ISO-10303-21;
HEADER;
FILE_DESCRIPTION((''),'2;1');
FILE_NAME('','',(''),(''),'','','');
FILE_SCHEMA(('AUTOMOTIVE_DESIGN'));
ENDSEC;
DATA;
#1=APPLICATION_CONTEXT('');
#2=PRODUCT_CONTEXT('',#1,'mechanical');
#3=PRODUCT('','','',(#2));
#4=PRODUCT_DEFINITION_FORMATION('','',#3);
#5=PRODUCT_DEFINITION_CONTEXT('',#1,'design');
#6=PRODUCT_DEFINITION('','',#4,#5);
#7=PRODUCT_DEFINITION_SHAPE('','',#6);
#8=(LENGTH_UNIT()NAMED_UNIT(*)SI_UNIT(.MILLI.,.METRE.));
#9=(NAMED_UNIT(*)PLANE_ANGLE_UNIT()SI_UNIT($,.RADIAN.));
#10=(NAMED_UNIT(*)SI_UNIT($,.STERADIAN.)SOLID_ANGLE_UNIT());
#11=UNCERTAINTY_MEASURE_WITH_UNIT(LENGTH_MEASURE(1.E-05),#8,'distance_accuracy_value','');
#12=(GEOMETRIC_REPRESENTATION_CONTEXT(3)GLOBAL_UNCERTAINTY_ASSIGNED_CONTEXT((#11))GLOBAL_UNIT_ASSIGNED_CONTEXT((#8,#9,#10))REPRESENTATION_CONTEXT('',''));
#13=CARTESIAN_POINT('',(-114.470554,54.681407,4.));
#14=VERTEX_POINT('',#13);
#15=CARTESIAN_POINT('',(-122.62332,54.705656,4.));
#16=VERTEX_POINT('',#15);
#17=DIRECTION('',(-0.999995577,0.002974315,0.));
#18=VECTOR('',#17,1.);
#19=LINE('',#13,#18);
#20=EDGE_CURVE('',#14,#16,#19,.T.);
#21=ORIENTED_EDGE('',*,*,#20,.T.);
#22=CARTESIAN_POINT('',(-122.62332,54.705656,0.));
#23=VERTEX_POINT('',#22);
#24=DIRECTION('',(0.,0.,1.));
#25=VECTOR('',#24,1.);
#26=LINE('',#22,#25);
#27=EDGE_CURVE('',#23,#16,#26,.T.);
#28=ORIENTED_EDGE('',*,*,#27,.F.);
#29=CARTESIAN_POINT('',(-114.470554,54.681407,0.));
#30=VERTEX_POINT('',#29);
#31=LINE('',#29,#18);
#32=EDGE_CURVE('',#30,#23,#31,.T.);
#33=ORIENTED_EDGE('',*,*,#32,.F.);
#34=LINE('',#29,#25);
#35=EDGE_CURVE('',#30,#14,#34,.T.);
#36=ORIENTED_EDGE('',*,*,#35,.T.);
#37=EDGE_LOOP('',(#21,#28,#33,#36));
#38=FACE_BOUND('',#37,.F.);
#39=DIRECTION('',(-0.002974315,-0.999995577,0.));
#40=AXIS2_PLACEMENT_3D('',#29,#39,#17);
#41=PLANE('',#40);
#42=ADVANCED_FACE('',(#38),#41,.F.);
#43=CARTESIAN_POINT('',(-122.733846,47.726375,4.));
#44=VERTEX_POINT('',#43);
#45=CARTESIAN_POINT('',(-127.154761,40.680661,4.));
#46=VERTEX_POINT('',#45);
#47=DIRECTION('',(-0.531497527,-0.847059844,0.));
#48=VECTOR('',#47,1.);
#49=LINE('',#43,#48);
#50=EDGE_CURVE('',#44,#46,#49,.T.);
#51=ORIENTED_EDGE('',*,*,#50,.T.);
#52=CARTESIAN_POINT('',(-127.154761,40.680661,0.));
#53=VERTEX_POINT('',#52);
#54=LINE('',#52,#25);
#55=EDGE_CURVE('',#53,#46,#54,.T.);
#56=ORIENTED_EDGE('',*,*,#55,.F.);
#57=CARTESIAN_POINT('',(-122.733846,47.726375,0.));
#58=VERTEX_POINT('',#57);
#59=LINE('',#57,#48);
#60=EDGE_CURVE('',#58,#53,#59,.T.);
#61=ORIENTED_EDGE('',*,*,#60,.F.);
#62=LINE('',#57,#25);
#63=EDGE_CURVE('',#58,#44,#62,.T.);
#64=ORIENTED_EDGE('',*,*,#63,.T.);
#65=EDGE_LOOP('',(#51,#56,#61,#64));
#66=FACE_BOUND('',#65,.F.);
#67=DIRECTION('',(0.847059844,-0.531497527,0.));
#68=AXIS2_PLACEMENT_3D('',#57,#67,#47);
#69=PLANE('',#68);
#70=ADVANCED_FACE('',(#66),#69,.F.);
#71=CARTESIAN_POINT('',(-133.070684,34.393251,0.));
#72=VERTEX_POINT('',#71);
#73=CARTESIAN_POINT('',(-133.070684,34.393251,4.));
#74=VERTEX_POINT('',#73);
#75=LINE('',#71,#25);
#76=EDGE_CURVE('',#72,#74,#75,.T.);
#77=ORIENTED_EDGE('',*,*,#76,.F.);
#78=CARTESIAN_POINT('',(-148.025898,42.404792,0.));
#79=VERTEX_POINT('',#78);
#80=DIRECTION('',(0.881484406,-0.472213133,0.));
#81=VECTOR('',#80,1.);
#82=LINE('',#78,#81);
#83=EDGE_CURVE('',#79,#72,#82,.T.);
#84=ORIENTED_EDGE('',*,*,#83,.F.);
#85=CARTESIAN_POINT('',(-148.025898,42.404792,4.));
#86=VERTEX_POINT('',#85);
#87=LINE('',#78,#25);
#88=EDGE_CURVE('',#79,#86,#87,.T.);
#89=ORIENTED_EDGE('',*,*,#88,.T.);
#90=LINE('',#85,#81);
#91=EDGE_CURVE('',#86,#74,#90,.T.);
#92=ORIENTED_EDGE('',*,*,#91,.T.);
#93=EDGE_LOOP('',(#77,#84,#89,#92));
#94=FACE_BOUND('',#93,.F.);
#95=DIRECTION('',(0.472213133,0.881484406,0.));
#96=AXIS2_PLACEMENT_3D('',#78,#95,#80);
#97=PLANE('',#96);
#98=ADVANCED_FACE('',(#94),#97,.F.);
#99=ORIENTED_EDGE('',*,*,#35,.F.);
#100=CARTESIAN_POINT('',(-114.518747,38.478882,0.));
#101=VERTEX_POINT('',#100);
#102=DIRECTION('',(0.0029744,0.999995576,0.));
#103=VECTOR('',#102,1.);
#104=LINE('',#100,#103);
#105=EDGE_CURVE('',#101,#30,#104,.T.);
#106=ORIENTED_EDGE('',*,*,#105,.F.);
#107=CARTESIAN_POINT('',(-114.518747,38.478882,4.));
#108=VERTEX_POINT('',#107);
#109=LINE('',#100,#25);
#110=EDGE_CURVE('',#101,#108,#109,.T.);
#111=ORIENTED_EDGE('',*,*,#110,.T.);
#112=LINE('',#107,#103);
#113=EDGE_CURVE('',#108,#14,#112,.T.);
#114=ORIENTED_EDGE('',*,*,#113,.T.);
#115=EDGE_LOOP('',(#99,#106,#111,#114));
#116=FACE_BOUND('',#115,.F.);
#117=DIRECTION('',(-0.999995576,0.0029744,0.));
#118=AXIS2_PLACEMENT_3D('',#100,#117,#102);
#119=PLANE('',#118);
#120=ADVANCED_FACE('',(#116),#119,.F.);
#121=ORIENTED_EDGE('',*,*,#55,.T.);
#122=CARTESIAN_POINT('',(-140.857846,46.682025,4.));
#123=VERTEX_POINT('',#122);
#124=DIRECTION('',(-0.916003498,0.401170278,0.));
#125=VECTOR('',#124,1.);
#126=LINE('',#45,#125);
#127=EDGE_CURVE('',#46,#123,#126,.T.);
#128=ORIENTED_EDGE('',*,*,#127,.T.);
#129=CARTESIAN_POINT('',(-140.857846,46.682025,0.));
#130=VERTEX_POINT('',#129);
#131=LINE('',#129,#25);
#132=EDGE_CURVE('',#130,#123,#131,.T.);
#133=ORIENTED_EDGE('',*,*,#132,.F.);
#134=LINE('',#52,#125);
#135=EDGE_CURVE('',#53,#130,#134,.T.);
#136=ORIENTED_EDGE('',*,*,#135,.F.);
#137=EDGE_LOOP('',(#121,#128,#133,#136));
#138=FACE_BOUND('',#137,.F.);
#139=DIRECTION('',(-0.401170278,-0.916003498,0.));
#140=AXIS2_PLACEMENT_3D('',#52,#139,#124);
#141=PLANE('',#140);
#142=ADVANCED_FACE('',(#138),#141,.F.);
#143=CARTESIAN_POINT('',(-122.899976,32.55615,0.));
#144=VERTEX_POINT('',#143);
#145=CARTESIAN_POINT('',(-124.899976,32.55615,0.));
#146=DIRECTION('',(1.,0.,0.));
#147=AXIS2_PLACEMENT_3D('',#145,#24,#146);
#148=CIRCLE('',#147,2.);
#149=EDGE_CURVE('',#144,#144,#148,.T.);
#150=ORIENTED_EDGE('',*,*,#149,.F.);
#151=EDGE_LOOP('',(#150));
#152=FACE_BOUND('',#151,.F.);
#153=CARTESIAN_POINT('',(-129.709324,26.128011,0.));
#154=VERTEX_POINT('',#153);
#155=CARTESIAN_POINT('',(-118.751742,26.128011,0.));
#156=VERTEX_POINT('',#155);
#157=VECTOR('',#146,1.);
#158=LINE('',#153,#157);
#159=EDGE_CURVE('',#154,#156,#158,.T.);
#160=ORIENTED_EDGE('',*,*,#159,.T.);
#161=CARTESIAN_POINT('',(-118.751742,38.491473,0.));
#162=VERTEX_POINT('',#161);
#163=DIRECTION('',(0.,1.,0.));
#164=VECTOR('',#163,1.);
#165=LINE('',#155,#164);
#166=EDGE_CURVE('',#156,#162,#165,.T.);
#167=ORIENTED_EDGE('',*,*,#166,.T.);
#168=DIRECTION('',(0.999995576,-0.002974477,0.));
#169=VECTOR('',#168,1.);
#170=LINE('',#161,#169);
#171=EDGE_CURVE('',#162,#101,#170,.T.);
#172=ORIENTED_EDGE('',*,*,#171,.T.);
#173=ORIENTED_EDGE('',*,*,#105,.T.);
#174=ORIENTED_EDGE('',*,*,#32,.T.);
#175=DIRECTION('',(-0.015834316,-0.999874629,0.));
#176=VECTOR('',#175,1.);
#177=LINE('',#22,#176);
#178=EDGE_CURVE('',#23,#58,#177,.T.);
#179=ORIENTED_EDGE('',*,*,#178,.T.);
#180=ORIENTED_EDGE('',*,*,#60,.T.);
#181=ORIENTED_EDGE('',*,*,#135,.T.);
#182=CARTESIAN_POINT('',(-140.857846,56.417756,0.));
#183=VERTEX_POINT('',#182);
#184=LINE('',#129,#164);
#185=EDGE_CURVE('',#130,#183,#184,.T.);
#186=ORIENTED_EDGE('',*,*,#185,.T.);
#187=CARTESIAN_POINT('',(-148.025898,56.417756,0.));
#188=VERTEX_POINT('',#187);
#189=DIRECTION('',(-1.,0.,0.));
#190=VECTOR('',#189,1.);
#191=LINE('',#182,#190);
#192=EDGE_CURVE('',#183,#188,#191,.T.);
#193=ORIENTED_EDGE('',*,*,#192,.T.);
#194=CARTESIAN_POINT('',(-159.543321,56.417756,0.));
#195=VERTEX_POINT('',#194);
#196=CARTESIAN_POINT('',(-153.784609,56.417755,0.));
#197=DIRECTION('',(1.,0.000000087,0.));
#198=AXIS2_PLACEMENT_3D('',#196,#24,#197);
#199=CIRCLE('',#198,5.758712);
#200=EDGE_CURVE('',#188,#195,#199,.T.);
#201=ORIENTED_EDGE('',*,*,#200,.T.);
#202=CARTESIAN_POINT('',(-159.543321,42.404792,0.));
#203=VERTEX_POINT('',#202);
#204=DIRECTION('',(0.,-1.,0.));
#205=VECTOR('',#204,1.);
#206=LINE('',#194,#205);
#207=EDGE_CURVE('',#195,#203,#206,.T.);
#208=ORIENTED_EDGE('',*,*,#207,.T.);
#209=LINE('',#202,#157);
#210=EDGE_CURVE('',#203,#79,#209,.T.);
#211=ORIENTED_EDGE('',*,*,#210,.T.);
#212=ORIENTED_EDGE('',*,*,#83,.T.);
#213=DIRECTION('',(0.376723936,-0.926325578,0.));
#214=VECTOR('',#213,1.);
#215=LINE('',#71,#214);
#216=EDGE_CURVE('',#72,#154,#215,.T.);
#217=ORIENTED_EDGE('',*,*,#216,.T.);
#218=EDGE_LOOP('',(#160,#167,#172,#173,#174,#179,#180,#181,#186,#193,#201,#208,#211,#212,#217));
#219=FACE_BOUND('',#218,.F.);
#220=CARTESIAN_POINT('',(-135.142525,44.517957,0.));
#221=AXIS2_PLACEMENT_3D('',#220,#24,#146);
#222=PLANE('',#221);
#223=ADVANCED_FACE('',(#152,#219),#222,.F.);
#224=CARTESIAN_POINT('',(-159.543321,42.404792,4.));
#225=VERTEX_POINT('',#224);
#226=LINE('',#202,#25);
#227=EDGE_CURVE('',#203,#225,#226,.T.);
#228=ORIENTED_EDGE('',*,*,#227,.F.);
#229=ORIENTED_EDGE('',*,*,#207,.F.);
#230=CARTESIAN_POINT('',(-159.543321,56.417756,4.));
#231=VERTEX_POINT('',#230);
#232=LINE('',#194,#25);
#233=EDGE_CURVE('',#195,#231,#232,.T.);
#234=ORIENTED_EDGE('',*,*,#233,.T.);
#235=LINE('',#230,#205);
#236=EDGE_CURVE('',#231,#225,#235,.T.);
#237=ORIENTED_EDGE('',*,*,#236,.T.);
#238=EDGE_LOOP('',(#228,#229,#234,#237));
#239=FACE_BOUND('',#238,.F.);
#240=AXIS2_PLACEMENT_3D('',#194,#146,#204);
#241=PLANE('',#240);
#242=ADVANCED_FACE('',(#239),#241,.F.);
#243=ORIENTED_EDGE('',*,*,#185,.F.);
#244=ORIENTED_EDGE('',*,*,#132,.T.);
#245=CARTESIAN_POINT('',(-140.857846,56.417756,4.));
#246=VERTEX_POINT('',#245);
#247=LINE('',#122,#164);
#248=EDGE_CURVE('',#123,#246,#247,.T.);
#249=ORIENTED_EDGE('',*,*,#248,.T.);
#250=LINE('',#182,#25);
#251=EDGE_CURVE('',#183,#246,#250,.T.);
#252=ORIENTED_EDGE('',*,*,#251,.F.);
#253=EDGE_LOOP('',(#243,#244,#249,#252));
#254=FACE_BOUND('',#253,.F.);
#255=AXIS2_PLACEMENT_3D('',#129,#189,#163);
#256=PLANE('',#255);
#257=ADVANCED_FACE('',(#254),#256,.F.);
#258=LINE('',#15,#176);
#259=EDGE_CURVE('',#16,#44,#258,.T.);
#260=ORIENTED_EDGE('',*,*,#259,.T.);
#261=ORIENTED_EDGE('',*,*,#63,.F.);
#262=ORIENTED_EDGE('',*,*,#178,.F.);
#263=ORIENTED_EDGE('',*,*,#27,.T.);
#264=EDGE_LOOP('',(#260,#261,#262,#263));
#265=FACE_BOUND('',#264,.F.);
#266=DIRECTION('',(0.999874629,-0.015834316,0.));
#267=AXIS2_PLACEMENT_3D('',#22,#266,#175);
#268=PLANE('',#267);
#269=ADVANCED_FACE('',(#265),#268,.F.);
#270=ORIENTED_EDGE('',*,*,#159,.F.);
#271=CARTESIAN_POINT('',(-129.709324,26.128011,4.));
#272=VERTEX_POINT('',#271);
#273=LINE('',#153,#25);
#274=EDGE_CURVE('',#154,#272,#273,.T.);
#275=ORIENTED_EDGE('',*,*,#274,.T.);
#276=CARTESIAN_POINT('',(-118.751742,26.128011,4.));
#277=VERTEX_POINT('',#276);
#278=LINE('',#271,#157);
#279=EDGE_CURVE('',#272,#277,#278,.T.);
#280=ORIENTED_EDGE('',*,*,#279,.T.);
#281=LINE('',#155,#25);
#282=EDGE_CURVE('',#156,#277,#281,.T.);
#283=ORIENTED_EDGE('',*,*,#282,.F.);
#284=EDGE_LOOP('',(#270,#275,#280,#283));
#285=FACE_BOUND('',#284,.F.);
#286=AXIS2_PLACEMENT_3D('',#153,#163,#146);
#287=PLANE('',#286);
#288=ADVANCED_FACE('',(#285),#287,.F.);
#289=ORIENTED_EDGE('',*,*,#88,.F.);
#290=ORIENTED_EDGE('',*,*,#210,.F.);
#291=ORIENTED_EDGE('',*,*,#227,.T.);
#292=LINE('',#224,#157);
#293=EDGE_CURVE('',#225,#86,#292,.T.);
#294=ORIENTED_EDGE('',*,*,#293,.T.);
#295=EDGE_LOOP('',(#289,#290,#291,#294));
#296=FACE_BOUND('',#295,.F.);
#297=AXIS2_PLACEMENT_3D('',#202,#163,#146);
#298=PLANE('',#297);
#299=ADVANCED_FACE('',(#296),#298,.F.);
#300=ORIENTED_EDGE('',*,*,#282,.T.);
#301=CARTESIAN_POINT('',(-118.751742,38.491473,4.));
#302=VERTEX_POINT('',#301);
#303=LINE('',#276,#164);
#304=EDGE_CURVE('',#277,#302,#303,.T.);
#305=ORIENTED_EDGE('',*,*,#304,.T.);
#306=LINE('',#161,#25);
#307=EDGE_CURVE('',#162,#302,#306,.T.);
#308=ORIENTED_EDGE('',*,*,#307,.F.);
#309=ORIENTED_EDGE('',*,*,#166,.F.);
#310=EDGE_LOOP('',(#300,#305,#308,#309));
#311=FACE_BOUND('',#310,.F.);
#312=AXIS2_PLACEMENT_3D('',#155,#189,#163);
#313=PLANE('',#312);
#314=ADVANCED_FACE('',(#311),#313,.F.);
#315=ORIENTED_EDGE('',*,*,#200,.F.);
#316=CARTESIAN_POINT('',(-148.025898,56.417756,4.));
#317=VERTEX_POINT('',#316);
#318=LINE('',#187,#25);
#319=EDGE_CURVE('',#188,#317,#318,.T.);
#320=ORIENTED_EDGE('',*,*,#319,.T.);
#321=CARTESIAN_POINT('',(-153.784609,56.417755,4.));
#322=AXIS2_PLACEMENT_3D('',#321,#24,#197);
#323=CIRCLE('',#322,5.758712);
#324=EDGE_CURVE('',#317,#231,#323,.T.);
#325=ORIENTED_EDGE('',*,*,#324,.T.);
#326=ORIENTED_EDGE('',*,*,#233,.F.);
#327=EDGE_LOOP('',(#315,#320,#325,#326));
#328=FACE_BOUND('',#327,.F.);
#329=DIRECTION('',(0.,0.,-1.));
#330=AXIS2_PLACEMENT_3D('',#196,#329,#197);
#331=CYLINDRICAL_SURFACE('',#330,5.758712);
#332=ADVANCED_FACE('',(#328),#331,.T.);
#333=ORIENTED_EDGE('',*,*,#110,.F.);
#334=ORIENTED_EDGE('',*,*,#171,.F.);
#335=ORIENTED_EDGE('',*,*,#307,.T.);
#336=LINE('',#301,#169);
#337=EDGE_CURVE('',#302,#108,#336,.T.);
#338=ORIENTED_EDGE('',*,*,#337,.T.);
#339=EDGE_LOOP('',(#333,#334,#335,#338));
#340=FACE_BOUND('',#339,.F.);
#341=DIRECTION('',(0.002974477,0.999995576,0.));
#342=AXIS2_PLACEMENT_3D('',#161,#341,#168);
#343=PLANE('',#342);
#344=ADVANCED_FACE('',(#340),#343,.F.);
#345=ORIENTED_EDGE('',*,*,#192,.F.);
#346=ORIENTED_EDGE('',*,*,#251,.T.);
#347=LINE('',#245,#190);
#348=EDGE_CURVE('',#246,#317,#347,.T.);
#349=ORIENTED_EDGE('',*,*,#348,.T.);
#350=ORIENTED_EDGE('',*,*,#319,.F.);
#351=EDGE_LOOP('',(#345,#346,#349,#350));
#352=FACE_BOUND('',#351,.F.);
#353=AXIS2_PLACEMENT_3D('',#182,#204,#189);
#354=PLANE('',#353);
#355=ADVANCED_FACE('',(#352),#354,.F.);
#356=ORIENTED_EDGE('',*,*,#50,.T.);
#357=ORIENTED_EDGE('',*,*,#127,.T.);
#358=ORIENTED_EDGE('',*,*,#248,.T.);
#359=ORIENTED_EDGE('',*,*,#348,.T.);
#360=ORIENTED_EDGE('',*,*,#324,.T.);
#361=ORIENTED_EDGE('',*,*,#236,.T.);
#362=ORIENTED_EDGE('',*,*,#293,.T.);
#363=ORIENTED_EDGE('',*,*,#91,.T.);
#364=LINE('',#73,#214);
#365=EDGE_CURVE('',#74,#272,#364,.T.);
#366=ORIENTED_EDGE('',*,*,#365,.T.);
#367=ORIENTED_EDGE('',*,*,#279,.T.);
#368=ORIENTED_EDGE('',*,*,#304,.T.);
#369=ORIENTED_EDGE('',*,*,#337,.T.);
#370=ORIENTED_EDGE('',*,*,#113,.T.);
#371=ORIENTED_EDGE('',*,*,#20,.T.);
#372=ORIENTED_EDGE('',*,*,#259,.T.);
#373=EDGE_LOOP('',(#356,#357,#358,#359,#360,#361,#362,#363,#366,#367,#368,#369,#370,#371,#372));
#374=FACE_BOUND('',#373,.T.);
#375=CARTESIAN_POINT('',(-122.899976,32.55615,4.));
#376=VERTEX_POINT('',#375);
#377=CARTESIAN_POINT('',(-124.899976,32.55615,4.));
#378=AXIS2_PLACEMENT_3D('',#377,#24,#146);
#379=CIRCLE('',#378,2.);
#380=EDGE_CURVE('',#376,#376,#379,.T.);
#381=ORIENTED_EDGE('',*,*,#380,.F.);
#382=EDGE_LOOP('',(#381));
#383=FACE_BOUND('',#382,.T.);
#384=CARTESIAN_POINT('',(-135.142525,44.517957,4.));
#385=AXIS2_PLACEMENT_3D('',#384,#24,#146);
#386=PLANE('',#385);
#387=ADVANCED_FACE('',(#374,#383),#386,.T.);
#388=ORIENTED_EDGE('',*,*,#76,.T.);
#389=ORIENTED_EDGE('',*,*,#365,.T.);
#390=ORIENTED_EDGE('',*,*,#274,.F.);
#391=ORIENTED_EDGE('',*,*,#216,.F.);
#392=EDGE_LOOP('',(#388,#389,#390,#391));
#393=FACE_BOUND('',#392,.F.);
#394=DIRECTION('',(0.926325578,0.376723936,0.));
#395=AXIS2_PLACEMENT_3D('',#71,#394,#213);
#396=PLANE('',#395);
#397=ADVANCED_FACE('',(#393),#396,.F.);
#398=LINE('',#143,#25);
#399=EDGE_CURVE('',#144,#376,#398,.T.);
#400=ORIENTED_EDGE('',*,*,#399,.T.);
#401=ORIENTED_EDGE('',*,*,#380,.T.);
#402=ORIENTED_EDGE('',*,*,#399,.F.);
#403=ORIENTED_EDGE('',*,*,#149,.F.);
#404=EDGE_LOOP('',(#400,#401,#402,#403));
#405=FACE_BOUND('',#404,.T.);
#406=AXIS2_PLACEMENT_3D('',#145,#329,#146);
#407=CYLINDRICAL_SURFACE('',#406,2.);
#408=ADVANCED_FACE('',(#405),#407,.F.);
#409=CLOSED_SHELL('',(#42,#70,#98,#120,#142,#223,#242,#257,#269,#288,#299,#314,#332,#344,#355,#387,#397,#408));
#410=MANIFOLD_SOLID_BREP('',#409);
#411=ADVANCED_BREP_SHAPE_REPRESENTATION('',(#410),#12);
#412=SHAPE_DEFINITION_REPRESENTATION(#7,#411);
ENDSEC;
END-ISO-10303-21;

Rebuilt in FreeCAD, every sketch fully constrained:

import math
import FreeCAD as App
import Part
import Sketcher

V = App.Vector

doc = App.newDocument("Part")
body = doc.addObject("PartDesign::Body", "Body")

sketch1 = body.newObject("Sketcher::SketchObject", "Sketch")
sketch1.AttachmentSupport = (doc.getObject("XY_Plane"), [""])
sketch1.MapMode = "FlatFace"
sketch1.addGeometry(Part.LineSegment(V(-159.5, 56.4, 0), V(-159.5, 42.4, 0)), False)
sketch1.addGeometry(Part.LineSegment(V(-159.5, 42.4, 0), V(-148, 42.4, 0)), False)
sketch1.addGeometry(Part.LineSegment(V(-148, 42.4, 0), V(-133.1, 34.4, 0)), False)
sketch1.addGeometry(Part.LineSegment(V(-133.1, 34.4, 0), V(-129.7, 26.1, 0)), False)
sketch1.addGeometry(Part.LineSegment(V(-129.7, 26.1, 0), V(-118.8, 26.1, 0)), False)
sketch1.addGeometry(Part.LineSegment(V(-118.8, 26.1, 0), V(-118.8, 38.5, 0)), False)
sketch1.addGeometry(Part.LineSegment(V(-118.8, 38.5, 0), V(-114.5, 38.5, 0)), False)
sketch1.addGeometry(Part.LineSegment(V(-114.5, 38.5, 0), V(-114.5, 54.7, 0)), False)
sketch1.addGeometry(Part.LineSegment(V(-114.5, 54.7, 0), V(-122.6, 54.7, 0)), False)
sketch1.addGeometry(Part.LineSegment(V(-122.6, 54.7, 0), V(-122.7, 47.7, 0)), False)
sketch1.addGeometry(Part.LineSegment(V(-122.7, 47.7, 0), V(-127.2, 40.7, 0)), False)
sketch1.addGeometry(Part.LineSegment(V(-127.2, 40.7, 0), V(-140.9, 46.7, 0)), False)
sketch1.addGeometry(Part.LineSegment(V(-140.9, 46.7, 0), V(-140.9, 56.4, 0)), False)
sketch1.addGeometry(Part.LineSegment(V(-140.9, 56.4, 0), V(-148, 56.4, 0)), False)
sketch1.addGeometry(Part.ArcOfCircle(Part.Circle(V(-153.8, 56.4, 0), V(0, 0, 1), 5.8), math.radians(0), math.radians(180)), False)
sketch1.addGeometry(Part.Circle(V(-124.9, 32.6, 0), V(0, 0, 1), 2), False)
sketch1.addConstraint(Sketcher.Constraint("Coincident", 0, 2, 1, 1))
sketch1.addConstraint(Sketcher.Constraint("Coincident", 1, 2, 2, 1))
sketch1.addConstraint(Sketcher.Constraint("Coincident", 2, 2, 3, 1))
sketch1.addConstraint(Sketcher.Constraint("Coincident", 3, 2, 4, 1))
sketch1.addConstraint(Sketcher.Constraint("Coincident", 4, 2, 5, 1))
sketch1.addConstraint(Sketcher.Constraint("Coincident", 5, 2, 6, 1))
sketch1.addConstraint(Sketcher.Constraint("Coincident", 6, 2, 7, 1))
sketch1.addConstraint(Sketcher.Constraint("Coincident", 7, 2, 8, 1))
sketch1.addConstraint(Sketcher.Constraint("Coincident", 8, 2, 9, 1))
sketch1.addConstraint(Sketcher.Constraint("Coincident", 9, 2, 10, 1))
sketch1.addConstraint(Sketcher.Constraint("Coincident", 10, 2, 11, 1))
sketch1.addConstraint(Sketcher.Constraint("Coincident", 11, 2, 12, 1))
sketch1.addConstraint(Sketcher.Constraint("Coincident", 12, 2, 13, 1))
sketch1.addConstraint(Sketcher.Constraint("Coincident", 13, 2, 14, 1))
sketch1.addConstraint(Sketcher.Constraint("Tangent", 14, 2, 0, 1))
sketch1.addConstraint(Sketcher.Constraint("Vertical", 0))
sketch1.addConstraint(Sketcher.Constraint("Horizontal", 1))
sketch1.addConstraint(Sketcher.Constraint("Horizontal", 4))
sketch1.addConstraint(Sketcher.Constraint("Vertical", 5))
sketch1.addConstraint(Sketcher.Constraint("Vertical", 12))
sketch1.addConstraint(Sketcher.Constraint("Horizontal", 13))
sketch1.addConstraint(Sketcher.Constraint("Perpendicular", 6, 7))
sketch1.addConstraint(Sketcher.Constraint("Perpendicular", 7, 8))
sketch1.addConstraint(Sketcher.Constraint("Horizontal", 14, 3, 12, 2))
sketch1.addConstraint(Sketcher.Constraint("Vertical", 1, 2, 13, 2))
sketch1.addConstraint(Sketcher.Constraint("Diameter", 15, 4.0))
sketch1.addConstraint(Sketcher.Constraint("Radius", 14, 5.758712))
sketch1.addConstraint(Sketcher.Constraint("DistanceX", 11, 2, 9, 2, 18.124))
sketch1.addConstraint(Sketcher.Constraint("DistanceY", 5, 1, 5, 2, 12.363462))
sketch1.addConstraint(Sketcher.Constraint("DistanceY", 12, 1, 12, 2, 9.735731))
sketch1.addConstraint(Sketcher.Constraint("DistanceX", 1, 2, -1, 1, 148.025898))
sketch1.addConstraint(Sketcher.Constraint("DistanceY", 15, 3, 2, 2, 1.837101))
sketch1.addConstraint(Sketcher.Constraint("DistanceY", 5, 2, 9, 2, 9.234902))
sketch1.addConstraint(Sketcher.Constraint("DistanceX", 9, 2, 6, 2, 8.215099))
sketch1.addConstraint(Sketcher.Constraint("DistanceY", 8, 2, 12, 2, 1.7121))
sketch1.addConstraint(Sketcher.Constraint("DistanceX", 4, 1, 4, 2, 10.957582))
sketch1.addConstraint(Sketcher.Constraint("DistanceX", 13, 2, 13, 1, 7.168052))
sketch1.addConstraint(Sketcher.Constraint("DistanceY", 0, 2, 0, 1, 14.012964))
sketch1.addConstraint(Sketcher.Constraint("DistanceY", -1, 1, 15, 3, 32.55615))
sketch1.addConstraint(Sketcher.Constraint("DistanceY", -1, 1, 3, 2, 26.128011))
sketch1.addConstraint(Sketcher.Constraint("DistanceX", 4, 2, -1, 1, 118.751742))
sketch1.addConstraint(Sketcher.Constraint("DistanceX", 8, 2, -1, 1, 122.62332))
sketch1.addConstraint(Sketcher.Constraint("DistanceX", 10, 2, -1, 1, 127.154761))
sketch1.addConstraint(Sketcher.Constraint("DistanceY", -1, 1, 10, 2, 40.680661))
sketch1.addConstraint(Sketcher.Constraint("DistanceY", 15, 3, 0, 2, 9.848642))
sketch1.addConstraint(Sketcher.Constraint("DistanceX", 2, 2, 15, 3, 8.170708))
sketch1.addConstraint(Sketcher.Constraint("DistanceX", 3, 2, 15, 3, 4.809348))
sketch1.addConstraint(Sketcher.Constraint("DistanceY", 6, 2, 5, 2, 0.012591))
pad1 = body.newObject("PartDesign::Pad", "Pad")
pad1.Profile = sketch1
pad1.Length = 4

doc.recompute()
